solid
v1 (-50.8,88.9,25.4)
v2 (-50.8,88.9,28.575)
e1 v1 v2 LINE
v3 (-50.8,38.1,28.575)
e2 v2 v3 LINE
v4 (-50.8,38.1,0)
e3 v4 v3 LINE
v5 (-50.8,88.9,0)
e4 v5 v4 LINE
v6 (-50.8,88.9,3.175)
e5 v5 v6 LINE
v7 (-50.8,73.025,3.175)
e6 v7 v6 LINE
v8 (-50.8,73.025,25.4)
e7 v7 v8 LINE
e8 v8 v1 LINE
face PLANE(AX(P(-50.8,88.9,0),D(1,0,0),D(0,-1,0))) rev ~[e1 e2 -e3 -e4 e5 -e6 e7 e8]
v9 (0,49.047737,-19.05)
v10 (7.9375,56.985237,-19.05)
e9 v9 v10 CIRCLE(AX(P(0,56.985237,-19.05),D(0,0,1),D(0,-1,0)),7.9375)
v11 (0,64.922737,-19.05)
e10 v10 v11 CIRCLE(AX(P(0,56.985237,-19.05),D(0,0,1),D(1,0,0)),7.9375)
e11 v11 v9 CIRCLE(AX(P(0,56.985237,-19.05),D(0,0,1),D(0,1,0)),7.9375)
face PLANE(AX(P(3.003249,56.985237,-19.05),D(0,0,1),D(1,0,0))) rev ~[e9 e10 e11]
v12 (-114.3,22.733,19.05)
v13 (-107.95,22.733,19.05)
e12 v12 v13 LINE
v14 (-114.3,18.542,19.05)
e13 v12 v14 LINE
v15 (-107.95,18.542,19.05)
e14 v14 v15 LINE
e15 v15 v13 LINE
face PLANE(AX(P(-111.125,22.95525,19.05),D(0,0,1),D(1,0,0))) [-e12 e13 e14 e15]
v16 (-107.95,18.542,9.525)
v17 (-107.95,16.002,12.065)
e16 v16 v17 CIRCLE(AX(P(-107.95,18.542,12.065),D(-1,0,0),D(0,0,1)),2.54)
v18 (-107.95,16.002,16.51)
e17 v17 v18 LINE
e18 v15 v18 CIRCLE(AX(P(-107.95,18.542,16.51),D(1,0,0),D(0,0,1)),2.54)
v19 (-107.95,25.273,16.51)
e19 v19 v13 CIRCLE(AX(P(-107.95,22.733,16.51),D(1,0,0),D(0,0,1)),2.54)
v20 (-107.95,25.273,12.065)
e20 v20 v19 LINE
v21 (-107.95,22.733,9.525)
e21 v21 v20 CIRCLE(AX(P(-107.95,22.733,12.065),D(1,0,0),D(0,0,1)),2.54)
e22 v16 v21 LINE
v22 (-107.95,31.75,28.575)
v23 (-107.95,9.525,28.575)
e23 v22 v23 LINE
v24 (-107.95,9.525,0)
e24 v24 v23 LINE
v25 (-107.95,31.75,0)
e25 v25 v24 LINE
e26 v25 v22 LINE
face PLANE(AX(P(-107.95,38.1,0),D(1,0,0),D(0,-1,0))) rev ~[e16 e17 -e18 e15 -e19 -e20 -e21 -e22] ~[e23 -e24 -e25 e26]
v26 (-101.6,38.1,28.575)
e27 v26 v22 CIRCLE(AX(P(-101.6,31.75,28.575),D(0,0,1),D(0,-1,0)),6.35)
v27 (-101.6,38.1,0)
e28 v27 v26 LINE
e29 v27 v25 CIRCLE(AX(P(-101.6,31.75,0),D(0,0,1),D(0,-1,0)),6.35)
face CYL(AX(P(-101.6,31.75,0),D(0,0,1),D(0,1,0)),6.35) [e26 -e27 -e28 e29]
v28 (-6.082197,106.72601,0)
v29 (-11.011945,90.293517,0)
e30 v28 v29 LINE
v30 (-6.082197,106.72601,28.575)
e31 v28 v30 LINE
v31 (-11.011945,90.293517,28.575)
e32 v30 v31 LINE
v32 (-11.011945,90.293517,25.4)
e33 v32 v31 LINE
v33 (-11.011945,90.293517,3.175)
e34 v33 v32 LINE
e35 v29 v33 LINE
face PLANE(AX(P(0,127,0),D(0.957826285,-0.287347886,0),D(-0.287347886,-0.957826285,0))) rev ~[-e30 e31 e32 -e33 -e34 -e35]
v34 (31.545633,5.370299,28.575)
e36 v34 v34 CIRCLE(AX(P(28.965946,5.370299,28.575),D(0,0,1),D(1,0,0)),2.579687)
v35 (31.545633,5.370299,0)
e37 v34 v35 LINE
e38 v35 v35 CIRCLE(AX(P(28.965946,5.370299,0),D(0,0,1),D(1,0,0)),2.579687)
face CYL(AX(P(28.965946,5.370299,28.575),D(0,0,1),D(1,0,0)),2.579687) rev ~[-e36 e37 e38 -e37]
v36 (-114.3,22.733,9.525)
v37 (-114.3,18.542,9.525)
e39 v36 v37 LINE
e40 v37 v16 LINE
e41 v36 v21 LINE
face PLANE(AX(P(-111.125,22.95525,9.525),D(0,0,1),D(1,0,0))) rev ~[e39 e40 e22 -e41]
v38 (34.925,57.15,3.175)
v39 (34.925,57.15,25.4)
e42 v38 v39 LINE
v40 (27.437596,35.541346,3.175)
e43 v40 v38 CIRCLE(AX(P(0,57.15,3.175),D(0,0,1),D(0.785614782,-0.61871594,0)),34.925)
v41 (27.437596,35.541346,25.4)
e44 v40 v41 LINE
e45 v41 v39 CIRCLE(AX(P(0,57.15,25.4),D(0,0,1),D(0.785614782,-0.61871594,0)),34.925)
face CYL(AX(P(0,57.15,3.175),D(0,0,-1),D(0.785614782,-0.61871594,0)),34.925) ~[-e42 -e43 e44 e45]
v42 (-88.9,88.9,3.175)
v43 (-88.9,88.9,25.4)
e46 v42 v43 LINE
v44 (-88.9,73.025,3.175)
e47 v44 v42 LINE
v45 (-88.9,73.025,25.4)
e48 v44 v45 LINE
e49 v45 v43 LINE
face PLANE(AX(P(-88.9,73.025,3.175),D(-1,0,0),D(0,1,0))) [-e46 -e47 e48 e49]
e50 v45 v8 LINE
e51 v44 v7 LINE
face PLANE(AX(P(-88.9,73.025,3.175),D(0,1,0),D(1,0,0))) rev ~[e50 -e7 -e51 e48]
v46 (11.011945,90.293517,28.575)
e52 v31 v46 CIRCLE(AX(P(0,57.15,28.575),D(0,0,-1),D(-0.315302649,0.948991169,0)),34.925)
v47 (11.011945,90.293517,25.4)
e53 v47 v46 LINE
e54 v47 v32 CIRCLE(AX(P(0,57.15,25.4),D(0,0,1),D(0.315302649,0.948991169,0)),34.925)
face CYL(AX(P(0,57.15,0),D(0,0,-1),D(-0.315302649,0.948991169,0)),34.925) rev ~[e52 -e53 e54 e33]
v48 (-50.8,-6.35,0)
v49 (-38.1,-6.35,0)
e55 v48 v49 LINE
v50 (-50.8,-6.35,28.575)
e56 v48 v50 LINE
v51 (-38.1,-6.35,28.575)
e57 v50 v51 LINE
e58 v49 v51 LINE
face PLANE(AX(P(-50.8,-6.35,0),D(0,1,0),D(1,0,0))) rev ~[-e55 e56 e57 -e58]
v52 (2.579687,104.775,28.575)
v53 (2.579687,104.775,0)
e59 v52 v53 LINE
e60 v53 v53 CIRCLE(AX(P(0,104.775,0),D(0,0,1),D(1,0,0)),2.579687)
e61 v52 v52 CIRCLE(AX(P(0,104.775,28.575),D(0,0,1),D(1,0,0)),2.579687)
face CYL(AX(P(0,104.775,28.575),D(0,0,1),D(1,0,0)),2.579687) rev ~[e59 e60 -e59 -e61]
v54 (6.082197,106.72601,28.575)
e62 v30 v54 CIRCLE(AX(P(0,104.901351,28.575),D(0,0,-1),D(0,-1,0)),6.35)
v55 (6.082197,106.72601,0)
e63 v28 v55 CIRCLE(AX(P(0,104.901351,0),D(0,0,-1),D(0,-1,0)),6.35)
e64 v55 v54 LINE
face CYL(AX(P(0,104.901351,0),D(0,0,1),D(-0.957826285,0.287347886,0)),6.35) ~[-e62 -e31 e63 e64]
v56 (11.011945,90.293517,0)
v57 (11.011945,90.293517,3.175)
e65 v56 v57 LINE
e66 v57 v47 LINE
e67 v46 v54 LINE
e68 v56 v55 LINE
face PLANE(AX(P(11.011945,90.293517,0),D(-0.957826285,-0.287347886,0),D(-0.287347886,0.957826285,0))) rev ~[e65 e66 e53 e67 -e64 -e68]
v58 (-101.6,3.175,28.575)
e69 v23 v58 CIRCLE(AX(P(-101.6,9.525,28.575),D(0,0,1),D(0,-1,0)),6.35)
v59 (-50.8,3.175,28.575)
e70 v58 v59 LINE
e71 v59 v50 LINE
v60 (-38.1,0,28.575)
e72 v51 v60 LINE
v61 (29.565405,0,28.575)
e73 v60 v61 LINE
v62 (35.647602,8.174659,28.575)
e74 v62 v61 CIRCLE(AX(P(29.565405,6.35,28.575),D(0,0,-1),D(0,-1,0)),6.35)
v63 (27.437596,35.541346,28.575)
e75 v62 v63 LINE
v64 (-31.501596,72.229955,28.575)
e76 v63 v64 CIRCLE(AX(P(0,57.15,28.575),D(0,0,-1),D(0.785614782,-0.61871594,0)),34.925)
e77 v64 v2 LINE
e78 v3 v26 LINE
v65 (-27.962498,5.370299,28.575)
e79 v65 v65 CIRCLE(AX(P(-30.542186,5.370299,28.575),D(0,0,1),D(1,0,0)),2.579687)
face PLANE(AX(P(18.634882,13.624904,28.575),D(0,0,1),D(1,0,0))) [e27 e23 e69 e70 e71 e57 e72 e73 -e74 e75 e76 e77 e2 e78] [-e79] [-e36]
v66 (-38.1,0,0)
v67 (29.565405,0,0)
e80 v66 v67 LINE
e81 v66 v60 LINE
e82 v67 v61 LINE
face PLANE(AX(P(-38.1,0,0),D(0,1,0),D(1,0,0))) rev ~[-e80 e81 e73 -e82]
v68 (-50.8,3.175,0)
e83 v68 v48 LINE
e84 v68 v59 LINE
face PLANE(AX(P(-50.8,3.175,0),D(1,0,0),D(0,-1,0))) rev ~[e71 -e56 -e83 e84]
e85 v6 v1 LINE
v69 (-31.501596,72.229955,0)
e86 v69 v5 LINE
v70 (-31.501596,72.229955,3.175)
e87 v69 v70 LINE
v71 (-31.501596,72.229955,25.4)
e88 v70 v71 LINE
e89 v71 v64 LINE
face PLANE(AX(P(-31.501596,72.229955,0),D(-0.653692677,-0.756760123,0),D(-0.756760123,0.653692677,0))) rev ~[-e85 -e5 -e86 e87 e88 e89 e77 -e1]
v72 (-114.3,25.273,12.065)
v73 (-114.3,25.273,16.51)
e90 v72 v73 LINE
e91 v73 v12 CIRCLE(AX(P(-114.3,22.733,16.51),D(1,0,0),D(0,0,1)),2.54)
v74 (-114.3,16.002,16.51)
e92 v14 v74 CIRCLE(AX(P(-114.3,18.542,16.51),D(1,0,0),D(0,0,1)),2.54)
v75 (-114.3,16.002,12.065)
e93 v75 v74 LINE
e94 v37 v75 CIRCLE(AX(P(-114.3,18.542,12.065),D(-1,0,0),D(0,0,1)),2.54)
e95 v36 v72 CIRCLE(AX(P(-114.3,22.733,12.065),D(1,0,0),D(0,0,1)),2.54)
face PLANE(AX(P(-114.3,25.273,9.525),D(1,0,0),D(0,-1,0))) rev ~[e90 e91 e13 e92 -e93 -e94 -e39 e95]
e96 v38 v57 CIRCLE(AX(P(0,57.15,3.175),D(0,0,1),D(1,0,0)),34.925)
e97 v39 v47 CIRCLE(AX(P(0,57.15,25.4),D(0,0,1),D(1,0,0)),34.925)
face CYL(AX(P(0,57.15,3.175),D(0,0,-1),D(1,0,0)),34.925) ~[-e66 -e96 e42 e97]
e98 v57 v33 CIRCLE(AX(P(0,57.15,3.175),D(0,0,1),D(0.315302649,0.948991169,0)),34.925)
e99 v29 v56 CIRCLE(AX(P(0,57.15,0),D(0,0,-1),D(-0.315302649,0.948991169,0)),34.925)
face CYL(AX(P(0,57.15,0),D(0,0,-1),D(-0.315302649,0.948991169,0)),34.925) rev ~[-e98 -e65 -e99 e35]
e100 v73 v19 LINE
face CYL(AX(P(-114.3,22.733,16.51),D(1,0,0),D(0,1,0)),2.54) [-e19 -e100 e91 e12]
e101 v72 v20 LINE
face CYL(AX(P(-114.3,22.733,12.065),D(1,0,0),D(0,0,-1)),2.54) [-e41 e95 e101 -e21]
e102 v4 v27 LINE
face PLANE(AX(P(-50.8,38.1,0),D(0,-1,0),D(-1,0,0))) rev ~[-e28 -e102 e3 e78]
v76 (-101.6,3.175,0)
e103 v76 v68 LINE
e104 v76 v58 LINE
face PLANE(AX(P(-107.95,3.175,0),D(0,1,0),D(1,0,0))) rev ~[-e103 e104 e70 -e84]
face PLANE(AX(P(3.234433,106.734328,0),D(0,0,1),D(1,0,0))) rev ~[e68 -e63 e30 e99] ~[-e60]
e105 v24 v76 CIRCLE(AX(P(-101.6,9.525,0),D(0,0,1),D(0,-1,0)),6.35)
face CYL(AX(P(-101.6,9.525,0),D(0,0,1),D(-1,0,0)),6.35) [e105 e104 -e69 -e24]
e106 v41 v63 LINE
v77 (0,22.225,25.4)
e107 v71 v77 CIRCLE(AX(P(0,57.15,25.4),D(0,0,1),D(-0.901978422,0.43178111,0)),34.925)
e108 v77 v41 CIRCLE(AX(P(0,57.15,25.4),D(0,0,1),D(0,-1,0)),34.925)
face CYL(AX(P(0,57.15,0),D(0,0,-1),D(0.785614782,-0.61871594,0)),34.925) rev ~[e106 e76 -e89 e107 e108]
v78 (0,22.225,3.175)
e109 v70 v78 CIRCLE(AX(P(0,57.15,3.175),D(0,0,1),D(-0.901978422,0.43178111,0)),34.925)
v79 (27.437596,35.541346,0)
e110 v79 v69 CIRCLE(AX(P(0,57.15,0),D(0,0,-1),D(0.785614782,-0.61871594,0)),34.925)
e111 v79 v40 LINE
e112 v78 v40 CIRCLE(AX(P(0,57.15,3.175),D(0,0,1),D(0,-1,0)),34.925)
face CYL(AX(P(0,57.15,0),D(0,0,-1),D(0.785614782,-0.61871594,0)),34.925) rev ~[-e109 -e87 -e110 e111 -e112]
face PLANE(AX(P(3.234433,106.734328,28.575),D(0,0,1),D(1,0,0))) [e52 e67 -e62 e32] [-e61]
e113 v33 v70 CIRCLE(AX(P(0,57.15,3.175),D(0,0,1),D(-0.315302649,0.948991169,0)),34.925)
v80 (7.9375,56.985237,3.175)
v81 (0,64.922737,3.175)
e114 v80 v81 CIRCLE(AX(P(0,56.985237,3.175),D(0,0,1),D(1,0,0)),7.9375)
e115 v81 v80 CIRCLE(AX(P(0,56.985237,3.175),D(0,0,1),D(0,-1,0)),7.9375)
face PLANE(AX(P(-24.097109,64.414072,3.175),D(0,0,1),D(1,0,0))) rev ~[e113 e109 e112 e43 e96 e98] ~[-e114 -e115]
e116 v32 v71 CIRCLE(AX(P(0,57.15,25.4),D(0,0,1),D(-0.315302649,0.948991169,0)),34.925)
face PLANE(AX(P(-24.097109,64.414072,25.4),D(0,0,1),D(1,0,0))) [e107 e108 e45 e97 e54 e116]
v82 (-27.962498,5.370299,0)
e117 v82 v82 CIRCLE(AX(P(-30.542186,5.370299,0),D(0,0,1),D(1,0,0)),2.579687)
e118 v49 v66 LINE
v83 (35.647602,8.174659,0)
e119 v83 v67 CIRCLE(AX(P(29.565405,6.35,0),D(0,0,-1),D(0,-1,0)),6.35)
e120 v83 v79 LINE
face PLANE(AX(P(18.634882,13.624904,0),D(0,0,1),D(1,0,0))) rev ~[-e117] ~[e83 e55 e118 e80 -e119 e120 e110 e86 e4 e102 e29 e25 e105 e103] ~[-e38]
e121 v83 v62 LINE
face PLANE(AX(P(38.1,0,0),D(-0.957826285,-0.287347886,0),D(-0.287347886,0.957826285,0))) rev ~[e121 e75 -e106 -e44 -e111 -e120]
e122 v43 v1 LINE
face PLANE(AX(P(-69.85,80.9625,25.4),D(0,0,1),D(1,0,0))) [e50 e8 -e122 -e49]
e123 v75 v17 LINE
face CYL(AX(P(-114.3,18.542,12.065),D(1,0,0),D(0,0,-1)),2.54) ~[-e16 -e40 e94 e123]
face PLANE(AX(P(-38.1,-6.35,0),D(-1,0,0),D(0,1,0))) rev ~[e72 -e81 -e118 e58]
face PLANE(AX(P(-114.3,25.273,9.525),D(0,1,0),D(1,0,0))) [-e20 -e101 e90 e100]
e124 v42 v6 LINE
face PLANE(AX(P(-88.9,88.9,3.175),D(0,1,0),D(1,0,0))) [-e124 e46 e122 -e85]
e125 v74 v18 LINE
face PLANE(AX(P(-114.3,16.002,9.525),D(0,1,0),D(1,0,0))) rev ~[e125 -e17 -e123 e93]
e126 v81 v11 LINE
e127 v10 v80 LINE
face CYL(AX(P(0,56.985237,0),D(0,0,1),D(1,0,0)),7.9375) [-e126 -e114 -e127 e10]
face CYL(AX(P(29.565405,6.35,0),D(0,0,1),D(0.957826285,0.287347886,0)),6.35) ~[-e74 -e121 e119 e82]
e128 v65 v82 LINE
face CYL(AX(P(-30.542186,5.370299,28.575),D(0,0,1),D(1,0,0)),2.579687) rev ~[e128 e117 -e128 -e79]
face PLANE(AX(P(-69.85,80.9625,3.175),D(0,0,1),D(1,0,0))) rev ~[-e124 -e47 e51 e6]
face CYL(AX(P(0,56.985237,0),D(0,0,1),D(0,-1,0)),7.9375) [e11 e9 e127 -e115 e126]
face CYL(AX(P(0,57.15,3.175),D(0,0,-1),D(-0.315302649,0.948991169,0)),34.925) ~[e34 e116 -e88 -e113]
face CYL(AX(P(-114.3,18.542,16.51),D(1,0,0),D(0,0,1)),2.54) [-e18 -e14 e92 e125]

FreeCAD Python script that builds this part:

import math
import FreeCAD as App
import Part
import Sketcher

V = App.Vector
Q = App.Units.Quantity


def edges_at(feature, points):
    """Names of the edges that pass closest to the given points."""
    edges = feature.Shape.Edges
    near = lambda p: min(range(len(edges)), key=lambda i: edges[i].distToShape(Part.Vertex(*p))[0])
    return sorted({f"Edge{near(p) + 1}" for p in points})


def add_polygon(sketch, points):
    """Adds a closed chain of lines whose ends are joined by coincident constraints."""
    first, n = sketch.GeometryCount, len(points)
    for a, b in zip(points, points[1:] + points[:1]):
        sketch.addGeometry(Part.LineSegment(App.Vector(*a, 0), App.Vector(*b, 0)), False)
    for i in range(n):
        sketch.addConstraint(Sketcher.Constraint("Coincident", first + i, 2, first + (i + 1) % n, 1))

doc = App.newDocument("Part")
body = doc.addObject("PartDesign::Body", "Body")

# Sketch on XY plane
sketch1 = body.newObject("Sketcher::SketchObject", "Sketch")
sketch1.AttachmentSupport = (doc.getObject("XY_Plane"), [""])
sketch1.MapMode = "FlatFace"
sketch1.addGeometry([
    Part.LineSegment(V(11.011945, 90.293517, 0), V(0, 127, 0)),
    Part.LineSegment(V(0, 127, 0), V(-11.011945, 90.293517, 0)),
    Part.ArcOfCircle(Part.Circle(V(0, 57.15, 0), V(0, 0, 1), 34.925), math.radians(71.620915), math.radians(108.379085)),
], False)
sketch1.addConstraint([
    Sketcher.Constraint("Coincident", 0, 2, 1, 1),
    Sketcher.Constraint("Coincident", 1, 2, 2, 2),
    Sketcher.Constraint("Coincident", 2, 1, 0, 1),
    Sketcher.Constraint("Symmetric", 1, 2, 2, 1, -2),
    Sketcher.Constraint("PointOnObject", 0, 2, -2),
    Sketcher.Constraint("DistanceY", -1, 1, 0, 2, Q("5 in")),
    Sketcher.Constraint("Radius", 2, Q("1.375 in")),
    Sketcher.Constraint("DistanceY", -1, 1, 2, 3, Q("2.25 in")),
    Sketcher.Constraint("DistanceX", 1, 2, 2, 1, 22.02389),
])
pad1 = body.newObject("PartDesign::Pad", "Pad")
pad1.Profile = sketch1
pad1.Length = Q("1.125 in")
body2 = doc.addObject("PartDesign::Body", "Body001")

# Sketch on XY plane
sketch2 = body2.newObject("Sketcher::SketchObject", "Sketch001")
sketch2.AttachmentSupport = (doc.getObject("XY_Plane001"), [""])
sketch2.MapMode = "FlatFace"
sketch2.addGeometry([
    Part.LineSegment(V(38.1, 0, 0), V(27.437596, 35.541346, 0)),  # 0
    Part.ArcOfCircle(Part.Circle(V(0, 57.15, 0), V(0, 0, 1), 34.925), math.radians(154.419353), math.radians(321.777574)),  # 1
    Part.LineSegment(V(-31.501596, 72.229955, 0), V(-50.8, 88.9, 0)),  # 2
    Part.LineSegment(V(-50.8, 88.9, 0), V(-50.8, 38.1, 0)),  # 3
    Part.LineSegment(V(-50.8, 38.1, 0), V(-107.95, 38.1, 0)),  # 4
    Part.LineSegment(V(-107.95, 38.1, 0), V(-107.95, 3.175, 0)),  # 5
    Part.LineSegment(V(-107.95, 3.175, 0), V(-50.8, 3.175, 0)),  # 6
    Part.LineSegment(V(-50.8, 3.175, 0), V(-50.8, -6.35, 0)),  # 7
    Part.LineSegment(V(-50.8, -6.35, 0), V(-38.1, -6.35, 0)),  # 8
    Part.LineSegment(V(-38.1, -6.35, 0), V(-38.1, 0, 0)),  # 9
    Part.LineSegment(V(-38.1, 0, 0), V(38.1, 0, 0)),  # 10
], False)
sketch2.addConstraint([
    Sketcher.Constraint("Coincident", 0, 2, 1, 2),
    Sketcher.Constraint("Coincident", 1, 1, 2, 1),
    Sketcher.Constraint("Coincident", 2, 2, 3, 1),
    Sketcher.Constraint("Coincident", 3, 2, 4, 1),
    Sketcher.Constraint("Coincident", 4, 2, 5, 1),
    Sketcher.Constraint("Coincident", 5, 2, 6, 1),
    Sketcher.Constraint("Coincident", 6, 2, 7, 1),
    Sketcher.Constraint("Coincident", 7, 2, 8, 1),
    Sketcher.Constraint("Coincident", 8, 2, 9, 1),
    Sketcher.Constraint("Coincident", 9, 2, 10, 1),
    Sketcher.Constraint("Coincident", 10, 2, 0, 1),
    Sketcher.Constraint("Vertical", 3),
    Sketcher.Constraint("Horizontal", 4),
    Sketcher.Constraint("Vertical", 5),
    Sketcher.Constraint("Horizontal", 6),
    Sketcher.Constraint("Vertical", 7),
    Sketcher.Constraint("Horizontal", 8),
    Sketcher.Constraint("Vertical", 9),
    Sketcher.Constraint("Horizontal", 10),
    Sketcher.Constraint("Symmetric", 9, 2, 10, 2, -1, 1),
    Sketcher.Constraint("PointOnObject", 1, 3, -2),
    Sketcher.Constraint("Vertical", 3, 2, 6, 2),
    Sketcher.Constraint("DistanceX", 10, 1, 10, 2, Q("3 in")),
    Sketcher.Constraint("DistanceY", 3, 2, 3, 1, Q("2 in")),
    Sketcher.Constraint("DistanceX", 8, 1, 8, 2, Q("0.5 in")),
    Sketcher.Constraint("Radius", 1, Q("1.375 in")),
    Sketcher.Constraint("DistanceX", 4, 2, 4, 1, Q("2.25 in")),
    Sketcher.Constraint("DistanceY", 9, 1, 9, 2, Q("0.25 in")),
    Sketcher.Constraint("DistanceY", -1, 1, 2, 2, Q("3.5 in")),
    Sketcher.Constraint("DistanceY", 8, 2, 1, 3, Q("2.5 in")),
    Sketcher.Constraint("DistanceY", 5, 2, 5, 1, Q("1.375 in")),
    Sketcher.Constraint("Distance", 2, 25.501348),
    Sketcher.Constraint("DistanceY", 0, 2, 1, 1, 36.688609),
])
pad2 = body2.newObject("PartDesign::Pad", "Pad001")
pad2.Profile = sketch2
pad2.Length = Q("1.125 in")
body.AllowCompound = True
doc.recompute()

boolean = body.newObject("PartDesign::Boolean", "Boolean")
boolean.Type = "Fuse"
boolean.addObjects([body2])

# Sketch on XY plane
sketch3 = body.newObject("Sketcher::SketchObject", "Sketch002")
sketch3.AttachmentSupport = (doc.getObject("XY_Plane"), [""])
sketch3.MapMode = "FlatFace"
sketch3.AttachmentOffset = App.Placement(V(0, 0, 0.125 * 25.4), App.Rotation())
sketch3.addGeometry([
    Part.ArcOfCircle(Part.Circle(V(0, 57.15, 0), V(0, 0, 1), 34.925), math.radians(154.419353), math.radians(270)),  # 0
    Part.ArcOfCircle(Part.Circle(V(0, 57.15, 0), V(0, 0, 1), 34.925), math.radians(-90), math.radians(-38.222426)),  # 1
    Part.ArcOfCircle(Part.Circle(V(0, 57.15, 0), V(0, 0, 1), 34.925), math.radians(-38.222426), math.radians(0)),  # 2
    Part.ArcOfCircle(Part.Circle(V(0, 57.15, 0), V(0, 0, 1), 34.925), math.radians(0), math.radians(71.620915)),  # 3
    Part.ArcOfCircle(Part.Circle(V(0, 57.15, 0), V(0, 0, 1), 34.925), math.radians(71.620915), math.radians(108.379085)),  # 4
    Part.ArcOfCircle(Part.Circle(V(0, 57.15, 0), V(0, 0, 1), 34.925), math.radians(108.379085), math.radians(154.419353)),  # 5
], False)
sketch3.addConstraint([
    Sketcher.Constraint("Tangent", 0, 2, 1, 1),
    Sketcher.Constraint("Tangent", 1, 2, 2, 1),
    Sketcher.Constraint("Tangent", 2, 2, 3, 1),
    Sketcher.Constraint("Tangent", 3, 2, 4, 1),
    Sketcher.Constraint("Tangent", 4, 2, 5, 1),
    Sketcher.Constraint("Tangent", 5, 2, 0, 1),
    Sketcher.Constraint("Coincident", 2, 3, 0, 3),
    Sketcher.Constraint("Equal", 2, 3),
    Sketcher.Constraint("Symmetric", 3, 2, 4, 2, -2),
    Sketcher.Constraint("PointOnObject", 0, 2, -2),
    Sketcher.Constraint("Horizontal", 5, 3, 2, 2),
    Sketcher.Constraint("Radius", 0, Q("1.375 in")),
    Sketcher.Constraint("DistanceY", -1, 1, 0, 3, Q("2.25 in")),
    Sketcher.Constraint("DistanceX", 4, 2, 3, 2, 22.02389),
    Sketcher.Constraint("DistanceX", 5, 2, 4, 2, 20.489651),
    Sketcher.Constraint("DistanceX", -1, 1, 1, 2, 27.437596),
])
pad3 = body.newObject("PartDesign::Pad", "Pad002")
pad3.Profile = sketch3
pad3.Length = Q("0.875 in")

# Sketch on XY plane
sketch4 = body.newObject("Sketcher::SketchObject", "Sketch003")
sketch4.AttachmentSupport = (doc.getObject("XY_Plane"), [""])
sketch4.MapMode = "FlatFace"
sketch4.AttachmentOffset = App.Placement(V(0, 0, 0.125 * 25.4), App.Rotation())
add_polygon(sketch4, [(-88.9, 88.9), (-88.9, 73.025), (-50.8, 73.025), (-50.8, 88.9)])  # lines 0-3
sketch4.addConstraint([
    Sketcher.Constraint("Vertical", 0),
    Sketcher.Constraint("Horizontal", 1),
    Sketcher.Constraint("Vertical", 2),
    Sketcher.Constraint("Horizontal", 3),
    Sketcher.Constraint("DistanceX", 1, 1, 1, 2, Q("1.5 in")),
    Sketcher.Constraint("DistanceX", 1, 2, -1, 1, Q("2 in")),
    Sketcher.Constraint("DistanceY", -1, 1, 2, 2, Q("3.5 in")),
    Sketcher.Constraint("DistanceY", 0, 2, 0, 1, Q("0.625 in")),
])
pad4 = body.newObject("PartDesign::Pad", "Pad003")
pad4.Profile = sketch4
pad4.Length = Q("0.875 in")

# Sketch on XY plane
sketch5 = body.newObject("Sketcher::SketchObject", "Sketch004")
sketch5.AttachmentSupport = (doc.getObject("XY_Plane"), [""])
sketch5.MapMode = "FlatFace"
sketch5.addGeometry([
    Part.ArcOfCircle(Part.Circle(V(0, 56.985237, 0), V(0, 0, 1), 7.9375), math.radians(-90), math.radians(0)),
    Part.ArcOfCircle(Part.Circle(V(0, 56.985237, 0), V(0, 0, 1), 7.9375), math.radians(0), math.radians(90)),
    Part.ArcOfCircle(Part.Circle(V(0, 56.985237, 0), V(0, 0, 1), 7.9375), math.radians(90), math.radians(270)),
], False)
sketch5.addConstraint([
    Sketcher.Constraint("Tangent", 0, 2, 1, 1),
    Sketcher.Constraint("Tangent", 1, 2, 2, 1),
    Sketcher.Constraint("Tangent", 2, 2, 0, 1),
    Sketcher.Constraint("PointOnObject", 0, 3, -2),
    Sketcher.Constraint("PointOnObject", 1, 2, -2),
    Sketcher.Constraint("PointOnObject", 2, 2, -2),
    Sketcher.Constraint("Horizontal", 2, 3, 0, 2),
    Sketcher.Constraint("Radius", 0, Q("0.3125 in")),
    Sketcher.Constraint("DistanceY", -1, 1, 0, 3, 56.985237),
])
pad5 = body.newObject("PartDesign::Pad", "Pad004")
pad5.Profile = sketch5
pad5.Length = Q("1.5 in")
pad5.Midplane = True
doc.recompute()

fillet = body.newObject("PartDesign::Fillet", "Fillet")
fillet.Base = (pad5, edges_at(pad5, [
    (0, 127, 14.287),
    (38.1, 0, 14.287),
    (-107.95, 3.175, 14.287),
    (-107.95, 38.1, 14.287),
]))
fillet.Radius = Q("0.25 in")

# Sketch on XY plane
sketch6 = body.newObject("Sketcher::SketchObject", "Sketch005")
sketch6.AttachmentSupport = (doc.getObject("XY_Plane"), [""])
sketch6.MapMode = "FlatFace"
sketch6.AttachmentOffset = App.Placement(V(0, 0, 0.375 * 25.4), App.Rotation())
add_polygon(sketch6, [(-114.3, 25.273), (-114.3, 16.002), (-107.95, 16.002), (-107.95, 25.273)])  # lines 0-3
sketch6.addConstraint([
    Sketcher.Constraint("Vertical", 0),
    Sketcher.Constraint("Horizontal", 1),
    Sketcher.Constraint("Vertical", 2),
    Sketcher.Constraint("Horizontal", 3),
    Sketcher.Constraint("DistanceX", 1, 1, 1, 2, Q("0.25 in")),
    Sketcher.Constraint("DistanceX", 0, 2, -1, 1, Q("4.5 in")),
    Sketcher.Constraint("DistanceY", 0, 2, 0, 1, Q("0.365 in")),
    Sketcher.Constraint("DistanceY", -1, 1, 0, 2, Q("0.63 in")),
])
pad6 = body.newObject("PartDesign::Pad", "Pad005")
pad6.Profile = sketch6
pad6.Length = Q("0.375 in")
doc.recompute()

fillet2 = body.newObject("PartDesign::Fillet", "Fillet001")
fillet2.Base = (pad6, edges_at(pad6, [
    (-111.125, 25.273, 19.05),
    (-111.125, 16.002, 19.05),
    (-111.125, 16.002, 9.525),
    (-111.125, 25.273, 9.525),
]))
fillet2.Radius = Q("0.1 in")

# Sketch on XY plane
sketch7 = body.newObject("Sketcher::SketchObject", "Sketch006")
sketch7.AttachmentSupport = (doc.getObject("XY_Plane"), [""])
sketch7.MapMode = "FlatFace"
sketch7.AttachmentOffset = App.Placement(V(0, 0, 1.125 * 25.4), App.Rotation())
sketch7.addGeometry([
    Part.Circle(V(0, 104.775, 0), V(0, 0, 1), 2.579687),
    Part.Circle(V(28.965946, 5.370299, 0), V(0, 0, 1), 2.579687),
    Part.Circle(V(-30.542186, 5.370299, 0), V(0, 0, 1), 2.579687),
], False)
sketch7.addConstraint([
    Sketcher.Constraint("Equal", 0, 1),
    Sketcher.Constraint("Equal", 1, 2),
    Sketcher.Constraint("PointOnObject", 0, 3, -2),
    Sketcher.Constraint("Horizontal", 1, 3, 2, 3),
    Sketcher.Constraint("Diameter", 0, Q("0.203125 in")),
    Sketcher.Constraint("DistanceY", -1, 1, 0, 3, Q("4.125 in")),
    Sketcher.Constraint("DistanceY", -1, 1, 1, 3, 5.370299),
    Sketcher.Constraint("DistanceX", 2, 3, 1, 3, 59.508131),
    Sketcher.Constraint("DistanceX", -1, 1, 1, 3, 28.965946),
])
pocket1 = body.newObject("PartDesign::Pocket", "Pocket")
pocket1.Profile = sketch7
pocket1.Type = "ThroughAll"

doc.recompute()
